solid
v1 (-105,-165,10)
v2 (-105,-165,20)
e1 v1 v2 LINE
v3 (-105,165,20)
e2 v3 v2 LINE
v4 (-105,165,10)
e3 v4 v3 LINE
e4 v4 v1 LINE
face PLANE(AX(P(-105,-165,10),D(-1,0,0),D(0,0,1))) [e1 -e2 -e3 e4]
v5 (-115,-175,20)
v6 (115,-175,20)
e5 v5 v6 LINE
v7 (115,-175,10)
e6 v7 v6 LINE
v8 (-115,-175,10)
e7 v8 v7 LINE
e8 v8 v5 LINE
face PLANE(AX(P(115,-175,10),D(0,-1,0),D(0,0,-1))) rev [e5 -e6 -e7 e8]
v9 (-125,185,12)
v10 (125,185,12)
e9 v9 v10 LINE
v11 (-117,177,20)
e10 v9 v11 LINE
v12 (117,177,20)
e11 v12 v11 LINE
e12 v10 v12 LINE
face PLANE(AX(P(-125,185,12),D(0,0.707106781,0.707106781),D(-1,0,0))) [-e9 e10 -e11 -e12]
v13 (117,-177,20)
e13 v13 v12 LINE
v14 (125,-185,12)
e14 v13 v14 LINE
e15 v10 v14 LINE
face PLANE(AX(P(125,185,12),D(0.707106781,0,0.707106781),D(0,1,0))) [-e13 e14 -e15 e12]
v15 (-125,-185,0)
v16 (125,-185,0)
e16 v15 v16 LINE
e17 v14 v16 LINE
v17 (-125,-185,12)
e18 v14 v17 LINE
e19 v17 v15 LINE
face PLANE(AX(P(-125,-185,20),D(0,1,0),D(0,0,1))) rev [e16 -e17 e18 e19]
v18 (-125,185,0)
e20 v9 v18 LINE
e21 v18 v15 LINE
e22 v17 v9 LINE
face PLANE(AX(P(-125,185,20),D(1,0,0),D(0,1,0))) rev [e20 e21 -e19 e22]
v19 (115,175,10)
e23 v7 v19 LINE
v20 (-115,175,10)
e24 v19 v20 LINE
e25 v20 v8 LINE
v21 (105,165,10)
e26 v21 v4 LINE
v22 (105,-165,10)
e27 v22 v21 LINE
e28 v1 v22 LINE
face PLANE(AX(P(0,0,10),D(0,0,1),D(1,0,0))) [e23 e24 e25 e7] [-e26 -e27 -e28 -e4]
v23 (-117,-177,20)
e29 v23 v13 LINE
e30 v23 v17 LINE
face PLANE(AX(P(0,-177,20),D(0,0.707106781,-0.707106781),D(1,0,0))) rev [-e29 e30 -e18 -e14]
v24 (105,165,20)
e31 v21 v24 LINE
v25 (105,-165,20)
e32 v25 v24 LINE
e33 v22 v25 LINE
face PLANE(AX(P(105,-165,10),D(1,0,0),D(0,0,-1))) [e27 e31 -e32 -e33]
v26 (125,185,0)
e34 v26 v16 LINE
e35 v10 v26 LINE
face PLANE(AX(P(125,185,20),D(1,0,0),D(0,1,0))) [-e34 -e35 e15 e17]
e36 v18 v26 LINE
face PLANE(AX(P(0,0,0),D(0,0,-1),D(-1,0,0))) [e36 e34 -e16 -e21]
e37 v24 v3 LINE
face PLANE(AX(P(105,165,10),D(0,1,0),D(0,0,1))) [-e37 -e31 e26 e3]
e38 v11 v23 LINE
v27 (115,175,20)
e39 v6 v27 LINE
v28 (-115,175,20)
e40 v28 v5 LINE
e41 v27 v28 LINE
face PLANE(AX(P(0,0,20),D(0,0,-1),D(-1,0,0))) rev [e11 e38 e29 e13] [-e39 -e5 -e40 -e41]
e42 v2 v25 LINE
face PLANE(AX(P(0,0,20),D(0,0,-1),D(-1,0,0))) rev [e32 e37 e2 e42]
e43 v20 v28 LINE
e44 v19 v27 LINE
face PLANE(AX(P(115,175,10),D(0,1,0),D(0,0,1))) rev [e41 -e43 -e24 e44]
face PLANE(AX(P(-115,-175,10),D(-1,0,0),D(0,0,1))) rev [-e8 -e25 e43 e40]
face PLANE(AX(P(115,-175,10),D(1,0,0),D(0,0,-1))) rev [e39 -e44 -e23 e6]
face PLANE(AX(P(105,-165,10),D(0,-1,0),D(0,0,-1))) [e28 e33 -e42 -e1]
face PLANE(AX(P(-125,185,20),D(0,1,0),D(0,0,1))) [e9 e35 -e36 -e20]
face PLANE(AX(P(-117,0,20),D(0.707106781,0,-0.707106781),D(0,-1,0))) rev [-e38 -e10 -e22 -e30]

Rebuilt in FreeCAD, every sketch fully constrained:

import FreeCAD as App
import Part
import Sketcher
from FreeCAD import Vector
Q = App.Units.Quantity


def edges_at(feature, points):
    """Names of the edges that pass closest to the given points."""
    edges = feature.Shape.Edges
    near = lambda p: min(range(len(edges)), key=lambda i: edges[i].distToShape(Part.Vertex(*p))[0])
    return sorted({f"Edge{near(p) + 1}" for p in points})

doc = App.newDocument("Part")
body = doc.addObject("PartDesign::Body", "Body")

# Sketch on XY plane
sketch1 = doc.addObject("Sketcher::SketchObject", "Sketch")
body.addObject(sketch1)
sketch1.AttachmentSupport = (doc.XY_Plane, [""])
sketch1.MapMode = "FlatFace"
sketch1.addGeometry([
    Part.LineSegment(Vector(-125, 185, 0), Vector(-125, -185, 0)),
    Part.LineSegment(Vector(-125, -185, 0), Vector(125, -185, 0)),
    Part.LineSegment(Vector(125, -185, 0), Vector(125, 185, 0)),
    Part.LineSegment(Vector(125, 185, 0), Vector(-125, 185, 0)),
], False)
sketch1.addConstraint([
    Sketcher.Constraint("Coincident", 0, 2, 1, 1),
    Sketcher.Constraint("Coincident", 1, 2, 2, 1),
    Sketcher.Constraint("Coincident", 2, 2, 3, 1),
    Sketcher.Constraint("Coincident", 3, 2, 0, 1),
    Sketcher.Constraint("Vertical", 0),
    Sketcher.Constraint("Horizontal", 1),
    Sketcher.Constraint("Vertical", 2),
    Sketcher.Constraint("Horizontal", 3),
    Sketcher.Constraint("Symmetric", 0, 2, 2, 2, -1, 1),
    Sketcher.Constraint("DistanceX", 1, 1, 1, 2, Q("250 mm")),
    Sketcher.Constraint("DistanceY", 0, 2, 0, 1, Q("370 mm")),
])
pad1 = doc.addObject("PartDesign::Pad", "Pad")
body.addObject(pad1)
pad1.Profile = sketch1
pad1.Length = 20
doc.recompute()

chamfer = doc.addObject("PartDesign::Chamfer", "Chamfer")
body.addObject(chamfer)
chamfer.Base = (pad1, edges_at(pad1, [
    (0, -185, 20),
    (-125, 0, 20),
    (0, 185, 20),
    (125, 0, 20),
]))
chamfer.Size = 8

# Sketch on XY plane
sketch2 = doc.addObject("Sketcher::SketchObject", "Sketch001")
body.addObject(sketch2)
sketch2.AttachmentSupport = (doc.XY_Plane, [""])
sketch2.MapMode = "FlatFace"
sketch2.AttachmentOffset = App.Placement(Vector(0, 0, 20), App.Rotation())
sketch2.addGeometry([
    Part.LineSegment(Vector(-115, 175, 0), Vector(-115, -175, 0)),  # 0
    Part.LineSegment(Vector(-115, -175, 0), Vector(115, -175, 0)),  # 1
    Part.LineSegment(Vector(115, -175, 0), Vector(115, 175, 0)),  # 2
    Part.LineSegment(Vector(115, 175, 0), Vector(-115, 175, 0)),  # 3
    Part.LineSegment(Vector(105, -165, 0), Vector(-105, -165, 0)),  # 4
    Part.LineSegment(Vector(-105, -165, 0), Vector(-105, 165, 0)),  # 5
    Part.LineSegment(Vector(-105, 165, 0), Vector(105, 165, 0)),  # 6
    Part.LineSegment(Vector(105, 165, 0), Vector(105, -165, 0)),  # 7
], False)
sketch2.addConstraint([
    Sketcher.Constraint("Coincident", 0, 2, 1, 1),
    Sketcher.Constraint("Coincident", 1, 2, 2, 1),
    Sketcher.Constraint("Coincident", 2, 2, 3, 1),
    Sketcher.Constraint("Coincident", 3, 2, 0, 1),
    Sketcher.Constraint("Coincident", 4, 2, 5, 1),
    Sketcher.Constraint("Coincident", 5, 2, 6, 1),
    Sketcher.Constraint("Coincident", 6, 2, 7, 1),
    Sketcher.Constraint("Coincident", 7, 2, 4, 1),
    Sketcher.Constraint("Vertical", 0),
    Sketcher.Constraint("Horizontal", 1),
    Sketcher.Constraint("Vertical", 2),
    Sketcher.Constraint("Horizontal", 3),
    Sketcher.Constraint("Horizontal", 4),
    Sketcher.Constraint("Vertical", 5),
    Sketcher.Constraint("Horizontal", 6),
    Sketcher.Constraint("Vertical", 7),
    Sketcher.Constraint("Symmetric", 0, 2, 2, 2, -1, 1),
    Sketcher.Constraint("Symmetric", 4, 2, 6, 2, -1, 1),
    Sketcher.Constraint("DistanceX", 1, 1, 1, 2, Q("230 mm")),
    Sketcher.Constraint("DistanceX", 4, 2, 4, 1, Q("210 mm")),
    Sketcher.Constraint("DistanceY", 0, 2, 0, 1, Q("350 mm")),
    Sketcher.Constraint("DistanceY", 5, 1, 5, 2, Q("330 mm")),
])
pocket1 = doc.addObject("PartDesign::Pocket", "Pocket")
body.addObject(pocket1)
pocket1.Profile = sketch2
pocket1.Length = 10

doc.recompute()
